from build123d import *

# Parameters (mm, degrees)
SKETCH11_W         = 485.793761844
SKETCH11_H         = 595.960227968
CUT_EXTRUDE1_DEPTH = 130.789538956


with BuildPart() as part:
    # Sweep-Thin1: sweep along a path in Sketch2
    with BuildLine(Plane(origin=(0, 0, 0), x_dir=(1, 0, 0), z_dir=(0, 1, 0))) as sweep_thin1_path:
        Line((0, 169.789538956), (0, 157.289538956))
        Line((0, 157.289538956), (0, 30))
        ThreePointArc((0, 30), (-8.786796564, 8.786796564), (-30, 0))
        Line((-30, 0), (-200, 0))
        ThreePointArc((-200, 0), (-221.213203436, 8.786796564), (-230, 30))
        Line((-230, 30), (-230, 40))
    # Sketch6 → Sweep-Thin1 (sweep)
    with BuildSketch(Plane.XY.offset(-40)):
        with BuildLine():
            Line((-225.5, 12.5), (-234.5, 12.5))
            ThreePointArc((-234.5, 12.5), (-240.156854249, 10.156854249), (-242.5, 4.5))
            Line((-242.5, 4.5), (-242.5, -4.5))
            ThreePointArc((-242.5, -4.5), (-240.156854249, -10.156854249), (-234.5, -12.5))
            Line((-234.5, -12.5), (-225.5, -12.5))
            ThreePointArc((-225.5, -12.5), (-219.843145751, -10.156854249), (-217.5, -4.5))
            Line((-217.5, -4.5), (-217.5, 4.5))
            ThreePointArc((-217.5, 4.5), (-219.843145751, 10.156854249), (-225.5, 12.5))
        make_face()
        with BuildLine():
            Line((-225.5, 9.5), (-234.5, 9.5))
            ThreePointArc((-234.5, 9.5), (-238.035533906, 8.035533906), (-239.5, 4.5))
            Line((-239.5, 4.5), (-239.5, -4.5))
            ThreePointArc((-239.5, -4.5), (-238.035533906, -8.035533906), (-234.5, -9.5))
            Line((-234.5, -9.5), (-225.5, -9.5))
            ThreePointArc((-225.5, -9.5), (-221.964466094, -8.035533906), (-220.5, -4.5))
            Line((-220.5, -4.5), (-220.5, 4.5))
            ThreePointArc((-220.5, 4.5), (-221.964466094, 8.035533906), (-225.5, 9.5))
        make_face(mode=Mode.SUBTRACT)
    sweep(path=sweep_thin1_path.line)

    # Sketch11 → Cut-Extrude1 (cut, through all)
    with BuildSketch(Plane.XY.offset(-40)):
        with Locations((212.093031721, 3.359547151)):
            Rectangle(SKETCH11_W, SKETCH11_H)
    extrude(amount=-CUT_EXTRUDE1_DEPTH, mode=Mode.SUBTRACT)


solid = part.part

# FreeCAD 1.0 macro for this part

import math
import FreeCAD as App
import Part
import Sketcher


def add_polygon(sketch, points):
    """Adds a closed chain of lines whose ends are joined by coincident constraints."""
    first, n = sketch.GeometryCount, len(points)
    for a, b in zip(points, points[1:] + points[:1]):
        sketch.addGeometry(Part.LineSegment(App.Vector(*a, 0), App.Vector(*b, 0)), False)
    for i in range(n):
        sketch.addConstraint(Sketcher.Constraint("Coincident", first + i, 2, first + (i + 1) % n, 1))

doc = App.newDocument("Part")
body = doc.addObject("PartDesign::Body", "Body")

# Sketch on XY plane
sketch1 = doc.addObject("Sketcher::SketchObject", "Sketch")
body.addObject(sketch1)
sketch1.AttachmentSupport = (doc.XY_Plane, [""])
sketch1.MapMode = "FlatFace"
sketch1.AttachmentOffset = App.Placement(App.Vector(0, 0, -40), App.Rotation())
sketch1.addGeometry([
    Part.LineSegment(App.Vector(-226, 12, 0), App.Vector(-234, 12, 0)),  # 0
    Part.ArcOfCircle(Part.Circle(App.Vector(-234, 4, 0), App.Vector(0, 0, 1), 8), math.radians(90), math.radians(180)),  # 1
    Part.LineSegment(App.Vector(-242, 4, 0), App.Vector(-242, -4, 0)),  # 2
    Part.ArcOfCircle(Part.Circle(App.Vector(-234, -4, 0), App.Vector(0, 0, 1), 8), math.radians(-180), math.radians(-90)),  # 3
    Part.LineSegment(App.Vector(-234, -12, 0), App.Vector(-226, -12, 0)),  # 4
    Part.ArcOfCircle(Part.Circle(App.Vector(-226, -4, 0), App.Vector(0, 0, 1), 8), math.radians(-90), math.radians(0)),  # 5
    Part.LineSegment(App.Vector(-218, -4, 0), App.Vector(-218, 4, 0)),  # 6
    Part.ArcOfCircle(Part.Circle(App.Vector(-226, 4, 0), App.Vector(0, 0, 1), 8), math.radians(0), math.radians(90)),  # 7
    Part.LineSegment(App.Vector(-234, 10, 0), App.Vector(-226, 10, 0)),  # 8
    Part.ArcOfCircle(Part.Circle(App.Vector(-226, 4, 0), App.Vector(0, 0, 1), 5), math.radians(0), math.radians(90)),  # 9
    Part.LineSegment(App.Vector(-220, 4, 0), App.Vector(-220, -4, 0)),  # 10
    Part.ArcOfCircle(Part.Circle(App.Vector(-226, -4, 0), App.Vector(0, 0, 1), 5), math.radians(-90), math.radians(0)),  # 11
    Part.LineSegment(App.Vector(-226, -10, 0), App.Vector(-234, -10, 0)),  # 12
    Part.ArcOfCircle(Part.Circle(App.Vector(-234, -4, 0), App.Vector(0, 0, 1), 5), math.radians(180), math.radians(270)),  # 13
    Part.LineSegment(App.Vector(-240, -4, 0), App.Vector(-240, 4, 0)),  # 14
    Part.ArcOfCircle(Part.Circle(App.Vector(-234, 4, 0), App.Vector(0, 0, 1), 5), math.radians(90), math.radians(180)),  # 15
], False)
sketch1.addConstraint([
    Sketcher.Constraint("Tangent", 0, 2, 1, 1),
    Sketcher.Constraint("Tangent", 1, 2, 2, 1),
    Sketcher.Constraint("Tangent", 2, 2, 3, 1),
    Sketcher.Constraint("Tangent", 3, 2, 4, 1),
    Sketcher.Constraint("Tangent", 4, 2, 5, 1),
    Sketcher.Constraint("Tangent", 5, 2, 6, 1),
    Sketcher.Constraint("Tangent", 6, 2, 7, 1),
    Sketcher.Constraint("Tangent", 7, 2, 0, 1),
    Sketcher.Constraint("Tangent", 8, 2, 9, 2),
    Sketcher.Constraint("Tangent", 9, 1, 10, 1),
    Sketcher.Constraint("Tangent", 10, 2, 11, 2),
    Sketcher.Constraint("Tangent", 11, 1, 12, 1),
    Sketcher.Constraint("Tangent", 12, 2, 13, 2),
    Sketcher.Constraint("Tangent", 13, 1, 14, 1),
    Sketcher.Constraint("Tangent", 14, 2, 15, 2),
    Sketcher.Constraint("Tangent", 15, 1, 8, 1),
    Sketcher.Constraint("Horizontal", 0),
    Sketcher.Constraint("Vertical", 2),
    Sketcher.Constraint("Horizontal", 4),
    Sketcher.Constraint("Vertical", 6),
    Sketcher.Constraint("Horizontal", 8),
    Sketcher.Constraint("Vertical", 10),
    Sketcher.Constraint("Horizontal", 12),
    Sketcher.Constraint("Vertical", 14),
    Sketcher.Constraint("Coincident", 9, 3, 7, 3),
    Sketcher.Constraint("Coincident", 11, 3, 5, 3),
    Sketcher.Constraint("Coincident", 13, 3, 3, 3),
    Sketcher.Constraint("Equal", 1, 3),
    Sketcher.Constraint("Equal", 3, 5),
    Sketcher.Constraint("Equal", 5, 7),
    Sketcher.Constraint("Equal", 13, 15),
    Sketcher.Constraint("Equal", 12, 2),
    Sketcher.Constraint("Radius", 1, 8.0),
    Sketcher.Constraint("Radius", 9, 5.0),
    Sketcher.Constraint("DistanceX", 0, 2, 0, 1, 9.0),
    Sketcher.Constraint("DistanceX", 1, 3, -1, 1, 234.5),
    Sketcher.Constraint("DistanceY", -1, 1, 1, 3, 4.5),
])

# Sketch on XZ plane
sketch2 = doc.addObject("Sketcher::SketchObject", "Sketch001")
body.addObject(sketch2)
sketch2.AttachmentSupport = (doc.XZ_Plane, [""])
sketch2.MapMode = "FlatFace"
sketch2.addGeometry([
    Part.LineSegment(App.Vector(0, -170, 0), App.Vector(0, -30, 0)),  # 0
    Part.ArcOfCircle(Part.Circle(App.Vector(-30, -30, 0), App.Vector(0, 0, 1), 30), math.radians(0), math.radians(90)),  # 1
    Part.LineSegment(App.Vector(-30, 0, 0), App.Vector(-200, 0, 0)),  # 2
    Part.ArcOfCircle(Part.Circle(App.Vector(-200, -30, 0), App.Vector(0, 0, 1), 30), math.radians(90), math.radians(180)),  # 3
    Part.LineSegment(App.Vector(-230, -30, 0), App.Vector(-230, -40, 0)),  # 4
], False)
sketch2.addConstraint([
    Sketcher.Constraint("Tangent", 0, 2, 1, 1),
    Sketcher.Constraint("Tangent", 1, 2, 2, 1),
    Sketcher.Constraint("Tangent", 2, 2, 3, 1),
    Sketcher.Constraint("Tangent", 3, 2, 4, 1),
    Sketcher.Constraint("Vertical", 0),
    Sketcher.Constraint("Horizontal", 2),
    Sketcher.Constraint("Vertical", 4),
    Sketcher.Constraint("Equal", 1, 3),
    Sketcher.Constraint("PointOnObject", 0, 1, -2),
    Sketcher.Constraint("PointOnObject", 1, 2, -1),
    Sketcher.Constraint("Radius", 1, 30.0),
    Sketcher.Constraint("DistanceX", 2, 2, 2, 1, 170.0),
    Sketcher.Constraint("DistanceY", 4, 2, 4, 1, 10.0),
    Sketcher.Constraint("DistanceY", 0, 1, 0, 2, 139.789539),
])
doc.recompute()

additivepipe = doc.addObject("PartDesign::AdditivePipe", "AdditivePipe")
body.addObject(additivepipe)
additivepipe.Profile = sketch1
additivepipe.Spine = (sketch2, ["Edge1", "Edge2", "Edge3", "Edge4", "Edge5"])

# Sketch on XY plane
sketch3 = doc.addObject("Sketcher::SketchObject", "Sketch002")
body.addObject(sketch3)
sketch3.AttachmentSupport = (doc.XY_Plane, [""])
sketch3.MapMode = "FlatFace"
sketch3.AttachmentOffset = App.Placement(App.Vector(0, 0, -40), App.Rotation())
add_polygon(sketch3, [(-31, 301), (-31, -295), (455, -295), (455, 301)])  # lines 0-3
sketch3.addConstraint([
    Sketcher.Constraint("Vertical", 0),
    Sketcher.Constraint("Horizontal", 1),
    Sketcher.Constraint("Vertical", 2),
    Sketcher.Constraint("Horizontal", 3),
    Sketcher.Constraint("DistanceX", 1, 1, 1, 2, 485.793762),
    Sketcher.Constraint("DistanceY", 0, 2, 0, 1, 595.960228),
    Sketcher.Constraint("DistanceX", 0, 2, -1, 1, 30.803849),
    Sketcher.Constraint("DistanceY", -1, 1, 2, 2, 301.339661),
])
pocket1 = doc.addObject("PartDesign::Pocket", "Pocket")
body.addObject(pocket1)
pocket1.Profile = sketch3
pocket1.Type = "ThroughAll"

doc.recompute()
